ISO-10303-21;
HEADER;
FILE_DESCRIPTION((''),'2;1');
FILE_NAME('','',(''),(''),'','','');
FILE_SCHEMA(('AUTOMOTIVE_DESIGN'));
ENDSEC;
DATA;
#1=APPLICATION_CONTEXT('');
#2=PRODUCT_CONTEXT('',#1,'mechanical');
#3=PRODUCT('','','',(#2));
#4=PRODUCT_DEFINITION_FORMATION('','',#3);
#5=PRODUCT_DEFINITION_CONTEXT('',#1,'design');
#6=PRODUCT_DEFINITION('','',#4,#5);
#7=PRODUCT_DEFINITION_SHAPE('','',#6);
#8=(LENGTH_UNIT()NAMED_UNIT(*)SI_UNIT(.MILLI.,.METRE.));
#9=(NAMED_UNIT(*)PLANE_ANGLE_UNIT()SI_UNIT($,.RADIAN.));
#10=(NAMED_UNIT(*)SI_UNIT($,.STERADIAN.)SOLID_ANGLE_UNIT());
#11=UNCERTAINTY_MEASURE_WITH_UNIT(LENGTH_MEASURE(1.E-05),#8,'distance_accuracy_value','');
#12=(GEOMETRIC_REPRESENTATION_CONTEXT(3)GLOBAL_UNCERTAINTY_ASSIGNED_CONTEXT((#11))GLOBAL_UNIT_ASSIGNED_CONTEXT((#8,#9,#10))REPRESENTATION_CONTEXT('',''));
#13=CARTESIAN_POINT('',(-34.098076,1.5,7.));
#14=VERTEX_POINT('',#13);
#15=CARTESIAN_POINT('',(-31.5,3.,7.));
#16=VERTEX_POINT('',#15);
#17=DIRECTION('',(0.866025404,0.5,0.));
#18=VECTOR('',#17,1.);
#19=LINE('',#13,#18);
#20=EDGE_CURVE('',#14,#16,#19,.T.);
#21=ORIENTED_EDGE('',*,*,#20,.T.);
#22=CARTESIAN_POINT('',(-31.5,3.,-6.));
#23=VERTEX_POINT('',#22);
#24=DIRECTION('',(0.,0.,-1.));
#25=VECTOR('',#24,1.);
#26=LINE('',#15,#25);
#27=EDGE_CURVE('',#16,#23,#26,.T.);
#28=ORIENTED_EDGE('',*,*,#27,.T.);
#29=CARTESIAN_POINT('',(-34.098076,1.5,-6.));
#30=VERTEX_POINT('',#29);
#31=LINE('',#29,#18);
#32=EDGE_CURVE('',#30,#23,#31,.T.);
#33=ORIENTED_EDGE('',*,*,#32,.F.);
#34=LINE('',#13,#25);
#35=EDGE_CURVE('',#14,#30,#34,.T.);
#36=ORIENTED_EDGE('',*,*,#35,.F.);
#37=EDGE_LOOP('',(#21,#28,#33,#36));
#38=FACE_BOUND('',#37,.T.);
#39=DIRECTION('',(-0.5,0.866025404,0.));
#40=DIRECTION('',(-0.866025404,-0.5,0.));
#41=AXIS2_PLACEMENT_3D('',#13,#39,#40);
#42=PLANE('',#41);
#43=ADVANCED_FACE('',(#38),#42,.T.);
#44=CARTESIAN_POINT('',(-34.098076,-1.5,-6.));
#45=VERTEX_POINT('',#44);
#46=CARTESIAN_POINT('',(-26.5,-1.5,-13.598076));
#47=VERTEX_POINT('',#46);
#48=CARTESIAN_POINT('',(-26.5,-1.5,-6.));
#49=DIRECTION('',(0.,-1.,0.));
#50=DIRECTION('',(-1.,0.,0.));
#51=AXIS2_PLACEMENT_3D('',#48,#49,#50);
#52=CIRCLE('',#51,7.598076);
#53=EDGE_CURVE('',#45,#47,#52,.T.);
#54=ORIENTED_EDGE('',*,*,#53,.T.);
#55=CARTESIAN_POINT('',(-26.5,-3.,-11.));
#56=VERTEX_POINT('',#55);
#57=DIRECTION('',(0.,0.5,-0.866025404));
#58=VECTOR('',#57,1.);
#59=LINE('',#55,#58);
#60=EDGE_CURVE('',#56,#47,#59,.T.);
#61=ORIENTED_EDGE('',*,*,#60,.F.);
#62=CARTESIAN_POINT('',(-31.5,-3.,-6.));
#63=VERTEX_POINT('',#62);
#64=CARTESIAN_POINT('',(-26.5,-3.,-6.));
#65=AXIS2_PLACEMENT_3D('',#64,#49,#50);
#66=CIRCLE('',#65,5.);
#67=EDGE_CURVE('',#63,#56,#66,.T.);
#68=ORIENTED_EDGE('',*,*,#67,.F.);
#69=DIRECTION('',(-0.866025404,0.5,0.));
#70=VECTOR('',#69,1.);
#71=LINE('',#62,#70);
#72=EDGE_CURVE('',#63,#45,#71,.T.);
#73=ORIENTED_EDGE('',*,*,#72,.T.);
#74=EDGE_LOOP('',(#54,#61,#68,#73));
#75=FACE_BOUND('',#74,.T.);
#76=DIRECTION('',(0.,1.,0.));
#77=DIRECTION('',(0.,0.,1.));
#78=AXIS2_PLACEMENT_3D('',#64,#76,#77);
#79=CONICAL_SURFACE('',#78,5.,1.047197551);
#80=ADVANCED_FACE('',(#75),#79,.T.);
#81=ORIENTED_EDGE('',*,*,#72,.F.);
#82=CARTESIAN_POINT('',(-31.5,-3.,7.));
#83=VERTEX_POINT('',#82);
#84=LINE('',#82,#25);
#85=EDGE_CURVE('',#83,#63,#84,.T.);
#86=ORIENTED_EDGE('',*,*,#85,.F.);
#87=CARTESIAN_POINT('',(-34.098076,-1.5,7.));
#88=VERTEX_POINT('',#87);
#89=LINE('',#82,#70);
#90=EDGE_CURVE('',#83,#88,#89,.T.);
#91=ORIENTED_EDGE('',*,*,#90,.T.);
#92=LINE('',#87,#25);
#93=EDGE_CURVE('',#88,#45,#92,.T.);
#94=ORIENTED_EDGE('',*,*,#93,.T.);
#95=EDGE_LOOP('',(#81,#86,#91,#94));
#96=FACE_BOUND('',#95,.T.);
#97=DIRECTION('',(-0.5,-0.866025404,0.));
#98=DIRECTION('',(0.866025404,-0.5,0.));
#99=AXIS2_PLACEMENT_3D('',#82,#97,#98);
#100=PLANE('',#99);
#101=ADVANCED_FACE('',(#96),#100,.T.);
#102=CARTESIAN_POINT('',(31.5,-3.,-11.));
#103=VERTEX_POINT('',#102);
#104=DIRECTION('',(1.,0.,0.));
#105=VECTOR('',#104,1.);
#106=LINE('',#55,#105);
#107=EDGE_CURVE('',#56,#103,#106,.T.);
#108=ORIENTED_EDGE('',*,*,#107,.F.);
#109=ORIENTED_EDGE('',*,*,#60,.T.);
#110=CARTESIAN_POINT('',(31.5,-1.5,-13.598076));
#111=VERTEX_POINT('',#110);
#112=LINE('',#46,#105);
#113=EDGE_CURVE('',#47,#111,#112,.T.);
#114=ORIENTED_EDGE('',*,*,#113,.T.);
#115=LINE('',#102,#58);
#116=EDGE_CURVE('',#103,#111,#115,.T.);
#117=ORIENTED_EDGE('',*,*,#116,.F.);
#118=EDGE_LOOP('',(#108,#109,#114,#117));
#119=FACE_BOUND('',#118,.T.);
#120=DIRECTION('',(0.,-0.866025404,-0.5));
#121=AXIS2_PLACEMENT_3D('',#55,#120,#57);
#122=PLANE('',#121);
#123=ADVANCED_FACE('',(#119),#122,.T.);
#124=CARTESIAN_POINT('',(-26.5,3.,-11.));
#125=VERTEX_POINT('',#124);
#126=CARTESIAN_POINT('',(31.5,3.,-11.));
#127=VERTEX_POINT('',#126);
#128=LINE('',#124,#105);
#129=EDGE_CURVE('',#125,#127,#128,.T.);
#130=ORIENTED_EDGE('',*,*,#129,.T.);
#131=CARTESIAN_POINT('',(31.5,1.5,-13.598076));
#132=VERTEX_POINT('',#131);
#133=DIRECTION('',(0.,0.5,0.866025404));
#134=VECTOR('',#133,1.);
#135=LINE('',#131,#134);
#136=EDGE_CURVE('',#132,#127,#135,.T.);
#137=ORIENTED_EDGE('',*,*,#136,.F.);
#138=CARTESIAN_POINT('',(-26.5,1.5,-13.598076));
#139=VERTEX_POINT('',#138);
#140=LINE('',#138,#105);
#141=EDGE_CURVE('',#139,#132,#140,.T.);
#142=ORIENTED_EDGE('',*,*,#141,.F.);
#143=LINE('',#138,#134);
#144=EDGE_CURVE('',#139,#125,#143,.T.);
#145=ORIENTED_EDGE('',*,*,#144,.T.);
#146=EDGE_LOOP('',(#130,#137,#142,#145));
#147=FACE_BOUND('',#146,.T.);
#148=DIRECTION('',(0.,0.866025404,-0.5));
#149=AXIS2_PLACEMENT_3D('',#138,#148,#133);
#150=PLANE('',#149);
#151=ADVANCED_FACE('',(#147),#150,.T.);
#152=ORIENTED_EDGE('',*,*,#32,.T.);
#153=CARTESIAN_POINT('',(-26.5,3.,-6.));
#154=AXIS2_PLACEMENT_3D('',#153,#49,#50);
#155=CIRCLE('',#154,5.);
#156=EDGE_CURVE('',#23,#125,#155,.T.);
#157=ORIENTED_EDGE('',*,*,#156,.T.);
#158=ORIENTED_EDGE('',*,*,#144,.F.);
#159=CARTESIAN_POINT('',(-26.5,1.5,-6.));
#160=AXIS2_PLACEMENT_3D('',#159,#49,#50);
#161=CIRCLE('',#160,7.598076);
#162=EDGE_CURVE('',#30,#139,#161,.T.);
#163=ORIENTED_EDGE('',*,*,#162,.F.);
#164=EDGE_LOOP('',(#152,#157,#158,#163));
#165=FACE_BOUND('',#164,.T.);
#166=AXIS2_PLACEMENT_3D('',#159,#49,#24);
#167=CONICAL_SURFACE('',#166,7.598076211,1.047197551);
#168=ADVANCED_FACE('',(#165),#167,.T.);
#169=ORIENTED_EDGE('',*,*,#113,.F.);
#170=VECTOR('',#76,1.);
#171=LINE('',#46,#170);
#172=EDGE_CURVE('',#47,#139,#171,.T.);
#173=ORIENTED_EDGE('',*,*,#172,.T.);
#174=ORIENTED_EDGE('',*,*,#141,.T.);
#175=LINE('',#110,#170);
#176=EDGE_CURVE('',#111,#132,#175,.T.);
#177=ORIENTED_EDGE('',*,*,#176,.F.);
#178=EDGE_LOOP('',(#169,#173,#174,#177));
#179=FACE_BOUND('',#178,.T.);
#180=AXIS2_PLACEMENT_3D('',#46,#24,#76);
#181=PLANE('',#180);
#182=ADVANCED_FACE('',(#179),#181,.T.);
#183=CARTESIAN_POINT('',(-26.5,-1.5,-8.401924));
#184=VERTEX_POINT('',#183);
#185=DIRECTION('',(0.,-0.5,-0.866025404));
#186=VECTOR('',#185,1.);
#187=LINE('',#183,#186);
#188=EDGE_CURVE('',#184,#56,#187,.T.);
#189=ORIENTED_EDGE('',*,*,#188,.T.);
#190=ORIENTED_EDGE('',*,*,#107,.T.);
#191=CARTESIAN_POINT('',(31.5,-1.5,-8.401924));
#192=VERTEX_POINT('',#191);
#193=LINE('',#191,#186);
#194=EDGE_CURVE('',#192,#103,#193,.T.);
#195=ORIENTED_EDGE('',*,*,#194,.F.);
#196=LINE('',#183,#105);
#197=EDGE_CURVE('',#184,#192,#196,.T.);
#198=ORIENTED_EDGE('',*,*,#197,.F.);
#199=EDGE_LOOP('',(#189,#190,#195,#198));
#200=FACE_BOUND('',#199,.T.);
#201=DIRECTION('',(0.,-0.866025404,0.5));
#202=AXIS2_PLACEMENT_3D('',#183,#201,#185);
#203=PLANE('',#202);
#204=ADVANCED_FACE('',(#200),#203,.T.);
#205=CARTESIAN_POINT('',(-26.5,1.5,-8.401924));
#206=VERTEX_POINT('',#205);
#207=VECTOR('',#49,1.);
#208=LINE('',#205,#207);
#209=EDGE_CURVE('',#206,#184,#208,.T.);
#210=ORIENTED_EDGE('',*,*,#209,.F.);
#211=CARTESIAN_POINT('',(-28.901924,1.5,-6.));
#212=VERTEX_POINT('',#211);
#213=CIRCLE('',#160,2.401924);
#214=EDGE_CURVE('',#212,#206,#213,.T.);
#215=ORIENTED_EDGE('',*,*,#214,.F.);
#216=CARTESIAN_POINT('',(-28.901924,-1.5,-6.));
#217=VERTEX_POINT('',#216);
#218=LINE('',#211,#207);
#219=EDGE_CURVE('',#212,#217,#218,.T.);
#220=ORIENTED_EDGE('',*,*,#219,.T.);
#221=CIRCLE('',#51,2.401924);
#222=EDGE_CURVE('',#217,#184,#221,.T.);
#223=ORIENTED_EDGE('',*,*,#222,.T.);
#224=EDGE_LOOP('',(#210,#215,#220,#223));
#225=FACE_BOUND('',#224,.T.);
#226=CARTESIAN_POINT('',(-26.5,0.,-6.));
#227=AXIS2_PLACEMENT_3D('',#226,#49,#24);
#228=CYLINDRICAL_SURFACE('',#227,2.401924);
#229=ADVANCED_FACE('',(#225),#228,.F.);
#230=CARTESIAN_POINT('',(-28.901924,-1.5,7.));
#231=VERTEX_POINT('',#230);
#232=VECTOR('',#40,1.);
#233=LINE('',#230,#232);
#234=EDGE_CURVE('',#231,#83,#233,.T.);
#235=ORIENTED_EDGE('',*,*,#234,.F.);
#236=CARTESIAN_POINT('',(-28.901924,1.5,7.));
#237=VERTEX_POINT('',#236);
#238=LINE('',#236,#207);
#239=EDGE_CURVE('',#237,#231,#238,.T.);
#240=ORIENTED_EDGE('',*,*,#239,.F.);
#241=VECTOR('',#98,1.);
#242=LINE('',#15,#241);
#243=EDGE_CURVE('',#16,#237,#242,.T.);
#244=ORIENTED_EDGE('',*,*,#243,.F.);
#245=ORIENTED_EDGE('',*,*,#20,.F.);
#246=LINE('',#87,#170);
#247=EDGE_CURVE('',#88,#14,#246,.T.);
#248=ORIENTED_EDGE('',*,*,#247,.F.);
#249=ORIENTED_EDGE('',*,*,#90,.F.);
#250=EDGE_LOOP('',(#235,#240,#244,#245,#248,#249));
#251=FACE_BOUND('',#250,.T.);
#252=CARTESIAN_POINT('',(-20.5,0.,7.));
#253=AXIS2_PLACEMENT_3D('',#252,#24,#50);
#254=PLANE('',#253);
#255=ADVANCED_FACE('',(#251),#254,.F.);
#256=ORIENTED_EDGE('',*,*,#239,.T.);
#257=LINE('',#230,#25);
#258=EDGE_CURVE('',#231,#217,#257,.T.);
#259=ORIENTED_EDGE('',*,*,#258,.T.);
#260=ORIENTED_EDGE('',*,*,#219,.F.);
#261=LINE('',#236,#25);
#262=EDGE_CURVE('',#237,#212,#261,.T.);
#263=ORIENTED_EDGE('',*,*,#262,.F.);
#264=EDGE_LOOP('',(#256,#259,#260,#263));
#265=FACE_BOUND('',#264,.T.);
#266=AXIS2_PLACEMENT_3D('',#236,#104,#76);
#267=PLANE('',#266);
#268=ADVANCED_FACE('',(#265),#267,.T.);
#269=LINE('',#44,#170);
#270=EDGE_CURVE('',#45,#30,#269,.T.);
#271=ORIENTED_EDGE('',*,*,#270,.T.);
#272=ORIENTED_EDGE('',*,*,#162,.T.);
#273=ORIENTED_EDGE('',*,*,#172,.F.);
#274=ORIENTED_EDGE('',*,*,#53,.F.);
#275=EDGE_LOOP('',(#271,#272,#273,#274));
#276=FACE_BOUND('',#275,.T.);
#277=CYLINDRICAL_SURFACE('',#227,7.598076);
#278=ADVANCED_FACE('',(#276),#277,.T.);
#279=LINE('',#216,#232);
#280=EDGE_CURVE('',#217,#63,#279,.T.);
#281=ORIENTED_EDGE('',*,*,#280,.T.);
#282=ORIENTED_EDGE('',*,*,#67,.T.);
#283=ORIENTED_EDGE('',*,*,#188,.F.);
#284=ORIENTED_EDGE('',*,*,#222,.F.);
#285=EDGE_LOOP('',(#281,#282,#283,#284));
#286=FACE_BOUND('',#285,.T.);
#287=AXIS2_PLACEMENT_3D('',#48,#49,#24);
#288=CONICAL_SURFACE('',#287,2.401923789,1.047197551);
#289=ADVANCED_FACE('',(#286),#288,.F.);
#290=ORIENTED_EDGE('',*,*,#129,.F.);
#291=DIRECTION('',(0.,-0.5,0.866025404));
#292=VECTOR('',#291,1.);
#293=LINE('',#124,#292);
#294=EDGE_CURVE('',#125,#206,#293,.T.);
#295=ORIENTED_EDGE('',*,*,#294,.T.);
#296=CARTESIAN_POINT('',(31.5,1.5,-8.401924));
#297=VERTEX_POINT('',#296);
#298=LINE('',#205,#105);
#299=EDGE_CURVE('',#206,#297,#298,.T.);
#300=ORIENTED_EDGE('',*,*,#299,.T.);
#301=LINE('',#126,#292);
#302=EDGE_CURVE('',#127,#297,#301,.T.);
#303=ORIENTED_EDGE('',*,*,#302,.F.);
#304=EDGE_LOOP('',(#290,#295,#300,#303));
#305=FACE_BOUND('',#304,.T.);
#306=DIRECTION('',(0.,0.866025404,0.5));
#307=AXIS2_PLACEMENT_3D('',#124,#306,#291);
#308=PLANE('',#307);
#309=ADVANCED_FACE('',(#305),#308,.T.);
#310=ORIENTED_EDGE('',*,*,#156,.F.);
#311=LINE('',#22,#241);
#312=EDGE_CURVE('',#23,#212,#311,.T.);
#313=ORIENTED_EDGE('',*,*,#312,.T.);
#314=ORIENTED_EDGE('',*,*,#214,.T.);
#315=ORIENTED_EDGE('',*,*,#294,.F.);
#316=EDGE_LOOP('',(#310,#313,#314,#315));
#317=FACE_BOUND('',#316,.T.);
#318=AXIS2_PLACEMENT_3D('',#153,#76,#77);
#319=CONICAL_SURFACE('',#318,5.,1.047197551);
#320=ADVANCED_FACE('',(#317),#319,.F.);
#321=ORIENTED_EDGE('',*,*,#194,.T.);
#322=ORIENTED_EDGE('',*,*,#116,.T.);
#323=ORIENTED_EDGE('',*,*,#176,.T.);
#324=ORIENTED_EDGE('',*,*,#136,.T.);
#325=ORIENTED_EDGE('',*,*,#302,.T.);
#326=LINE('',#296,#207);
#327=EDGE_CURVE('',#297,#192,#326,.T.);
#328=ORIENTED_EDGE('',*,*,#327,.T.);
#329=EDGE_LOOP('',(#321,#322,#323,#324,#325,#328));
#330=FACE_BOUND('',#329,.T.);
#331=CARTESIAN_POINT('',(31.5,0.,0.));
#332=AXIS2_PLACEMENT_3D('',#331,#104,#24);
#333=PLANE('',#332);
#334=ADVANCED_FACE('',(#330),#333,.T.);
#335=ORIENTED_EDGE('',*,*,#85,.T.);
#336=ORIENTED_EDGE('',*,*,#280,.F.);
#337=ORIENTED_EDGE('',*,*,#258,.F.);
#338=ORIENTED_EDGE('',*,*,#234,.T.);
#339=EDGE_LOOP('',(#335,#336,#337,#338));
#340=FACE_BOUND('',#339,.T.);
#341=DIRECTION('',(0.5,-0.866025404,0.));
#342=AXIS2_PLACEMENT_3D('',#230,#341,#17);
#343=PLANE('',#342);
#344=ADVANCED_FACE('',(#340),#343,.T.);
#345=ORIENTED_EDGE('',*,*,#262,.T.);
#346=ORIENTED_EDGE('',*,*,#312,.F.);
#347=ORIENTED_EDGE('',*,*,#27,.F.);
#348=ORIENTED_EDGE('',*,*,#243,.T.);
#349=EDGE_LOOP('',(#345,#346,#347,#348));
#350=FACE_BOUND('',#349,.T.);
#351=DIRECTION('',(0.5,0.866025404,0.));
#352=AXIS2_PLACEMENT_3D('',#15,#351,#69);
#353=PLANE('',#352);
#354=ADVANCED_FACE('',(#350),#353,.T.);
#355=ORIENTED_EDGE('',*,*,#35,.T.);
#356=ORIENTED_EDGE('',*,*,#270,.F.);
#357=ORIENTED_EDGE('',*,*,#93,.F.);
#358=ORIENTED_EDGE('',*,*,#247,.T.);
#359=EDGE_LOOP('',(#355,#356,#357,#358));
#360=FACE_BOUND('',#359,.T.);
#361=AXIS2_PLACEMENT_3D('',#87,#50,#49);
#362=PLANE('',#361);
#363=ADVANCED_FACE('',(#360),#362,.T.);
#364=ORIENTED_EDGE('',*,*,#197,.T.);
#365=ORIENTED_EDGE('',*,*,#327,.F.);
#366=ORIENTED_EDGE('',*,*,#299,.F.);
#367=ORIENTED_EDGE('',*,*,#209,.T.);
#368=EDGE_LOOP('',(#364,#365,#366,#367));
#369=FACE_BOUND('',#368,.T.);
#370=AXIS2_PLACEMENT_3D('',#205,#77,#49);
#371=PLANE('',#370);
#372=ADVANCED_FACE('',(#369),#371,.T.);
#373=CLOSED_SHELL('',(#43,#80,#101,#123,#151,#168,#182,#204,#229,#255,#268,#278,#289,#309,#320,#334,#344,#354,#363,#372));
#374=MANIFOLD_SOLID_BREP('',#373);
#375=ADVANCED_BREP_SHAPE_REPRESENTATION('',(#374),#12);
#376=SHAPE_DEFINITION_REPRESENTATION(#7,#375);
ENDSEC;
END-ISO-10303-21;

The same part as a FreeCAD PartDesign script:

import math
import FreeCAD as App
import Part
import Sketcher

V = App.Vector
Q = App.Units.Quantity


def add_polygon(sketch, points):
    """Adds a closed chain of lines whose ends are joined by coincident constraints."""
    first, n = sketch.GeometryCount, len(points)
    for a, b in zip(points, points[1:] + points[:1]):
        sketch.addGeometry(Part.LineSegment(App.Vector(*a, 0), App.Vector(*b, 0)), False)
    for i in range(n):
        sketch.addConstraint(Sketcher.Constraint("Coincident", first + i, 2, first + (i + 1) % n, 1))

doc = App.newDocument("Part")
params = doc.addObject("Spreadsheet::Sheet", "Params")
for row, (alias, value) in enumerate([
    ("sketch1_width", "3 mm"),
    ("sketch1_length", "3 mm"),
    ("sketch2_radius", "5 mm"),
    ("sketch2_width", "58 mm"),
    ("sketch2_height", "13 mm"),
], start=1):
    params.set(f"A{row}", alias)
    params.set(f"B{row}", "=" + value)
    params.setAlias(f"B{row}", alias)

body = doc.addObject("PartDesign::Body", "Body")

# Sketch on YZ plane
sketch1 = body.newObject("Sketcher::SketchObject", "Sketch")
sketch1.AttachmentSupport = (doc.getObject("YZ_Plane"), [""])
sketch1.MapMode = "FlatFace"
sketch1.AttachmentOffset = App.Placement(V(0, 0, 31.5), App.Rotation())
add_polygon(sketch1, [(1.5, -8.4), (-1.5, -8.4), (-3, -11), (-1.5, -13.6), (1.5, -13.6), (3, -11)])  # lines 0-5
sketch1.addConstraint(Sketcher.Constraint("Horizontal", 0))
sketch1.addConstraint(Sketcher.Constraint("Horizontal", 3))
sketch1.addConstraint(Sketcher.Constraint("Symmetric", 1, 2, 4, 2, -2))
sketch1.addConstraint(Sketcher.Constraint("Parallel", 1, 4))
sketch1.addConstraint(Sketcher.Constraint("Parallel", 2, 5))
sketch1.addConstraint(Sketcher.Constraint("Vertical", 0, 2, 2, 2))
sketch1.addConstraint(Sketcher.Constraint("Vertical", 3, 2, 5, 2))
sketch1.addConstraint(Sketcher.Constraint("DistanceX", 0, 2, 0, 1, 3.0))
sketch1.addConstraint(Sketcher.Constraint("Angle", 1, Q("-120 deg")))
sketch1.addConstraint(Sketcher.Constraint("Distance", 1, 3.0))
sketch1.addConstraint(Sketcher.Constraint("DistanceY", 1, 2, -1, 1, 11.0))
sketch1.setExpression("Constraints[13]", "Params.sketch1_width")
sketch1.setExpression("Constraints[15]", "Params.sketch1_length")

# Sketch on XZ plane
sketch2 = body.newObject("Sketcher::SketchObject", "Sketch001")
sketch2.AttachmentSupport = (doc.getObject("XZ_Plane"), [""])
sketch2.MapMode = "FlatFace"
sketch2.addGeometry(Part.LineSegment(V(32, -11, 0), V(-26, -11, 0)), False)
sketch2.addGeometry(Part.ArcOfCircle(Part.Circle(V(-26, -6, 0), V(0, 0, 1), 5), math.radians(180), math.radians(270)), False)
sketch2.addGeometry(Part.LineSegment(V(-32, -6, 0), V(-32, 7, 0)), False)
sketch2.addConstraint(Sketcher.Constraint("Tangent", 0, 2, 1, 2))
sketch2.addConstraint(Sketcher.Constraint("Tangent", 1, 1, 2, 1))
sketch2.addConstraint(Sketcher.Constraint("Horizontal", 0))
sketch2.addConstraint(Sketcher.Constraint("Vertical", 2))
sketch2.addConstraint(Sketcher.Constraint("Radius", 1, 5.0))
sketch2.addConstraint(Sketcher.Constraint("DistanceX", 0, 2, 0, 1, 58.0))
sketch2.addConstraint(Sketcher.Constraint("DistanceY", 2, 1, 2, 2, 13.0))
sketch2.addConstraint(Sketcher.Constraint("DistanceY", 1, 3, -1, 1, 6.0))
sketch2.addConstraint(Sketcher.Constraint("DistanceX", 1, 3, -1, 1, 26.5))
sketch2.setExpression("Constraints[4]", "Params.sketch2_radius")
sketch2.setExpression("Constraints[5]", "Params.sketch2_width")
sketch2.setExpression("Constraints[6]", "Params.sketch2_height")
doc.recompute()

additivepipe = body.newObject("PartDesign::AdditivePipe", "AdditivePipe")
additivepipe.Profile = sketch1
additivepipe.Spine = (sketch2, ["Edge1", "Edge2", "Edge3"])

doc.recompute()
